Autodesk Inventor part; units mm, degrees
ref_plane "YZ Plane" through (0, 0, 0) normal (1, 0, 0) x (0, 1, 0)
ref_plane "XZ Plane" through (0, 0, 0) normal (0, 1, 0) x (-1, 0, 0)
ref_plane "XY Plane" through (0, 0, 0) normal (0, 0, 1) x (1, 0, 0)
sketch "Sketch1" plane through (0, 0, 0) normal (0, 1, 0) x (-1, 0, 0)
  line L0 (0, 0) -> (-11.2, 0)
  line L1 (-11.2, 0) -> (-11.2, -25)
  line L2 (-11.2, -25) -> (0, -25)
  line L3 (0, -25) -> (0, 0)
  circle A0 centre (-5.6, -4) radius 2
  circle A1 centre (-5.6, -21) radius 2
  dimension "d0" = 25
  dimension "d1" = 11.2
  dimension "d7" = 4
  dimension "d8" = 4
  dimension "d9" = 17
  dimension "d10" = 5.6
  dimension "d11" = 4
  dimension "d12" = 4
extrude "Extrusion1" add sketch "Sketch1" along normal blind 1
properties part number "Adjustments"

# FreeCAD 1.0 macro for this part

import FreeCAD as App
import Part
import Sketcher

doc = App.newDocument("Part")
body = doc.addObject("PartDesign::Body", "Body")

# Sketch on XZ plane
sketch1 = body.newObject("Sketcher::SketchObject", "Sketch")
sketch1.AttachmentSupport = (doc.getObject("XZ_Plane"), [""])
sketch1.MapMode = "FlatFace"
sketch1.addGeometry(Part.LineSegment(App.Vector(0, -25, 0), App.Vector(0, 0, 0)), False)
sketch1.addGeometry(Part.LineSegment(App.Vector(0, 0, 0), App.Vector(11.2, 0, 0)), False)
sketch1.addGeometry(Part.LineSegment(App.Vector(11.2, 0, 0), App.Vector(11.2, -25, 0)), False)
sketch1.addGeometry(Part.LineSegment(App.Vector(11.2, -25, 0), App.Vector(0, -25, 0)), False)
sketch1.addGeometry(Part.Circle(App.Vector(5.6, -21, 0), App.Vector(0, 0, 1), 2), False)
sketch1.addGeometry(Part.Circle(App.Vector(5.6, -4, 0), App.Vector(0, 0, 1), 2), False)
sketch1.addConstraint(Sketcher.Constraint("Coincident", 0, 2, 1, 1))
sketch1.addConstraint(Sketcher.Constraint("Coincident", 1, 2, 2, 1))
sketch1.addConstraint(Sketcher.Constraint("Coincident", 2, 2, 3, 1))
sketch1.addConstraint(Sketcher.Constraint("Coincident", 3, 2, 0, 1))
sketch1.addConstraint(Sketcher.Constraint("Vertical", 0))
sketch1.addConstraint(Sketcher.Constraint("Horizontal", 1))
sketch1.addConstraint(Sketcher.Constraint("Vertical", 2))
sketch1.addConstraint(Sketcher.Constraint("Horizontal", 3))
sketch1.addConstraint(Sketcher.Constraint("Coincident", 0, 2, -1, 1))
sketch1.addConstraint(Sketcher.Constraint("Equal", 4, 5))
sketch1.addConstraint(Sketcher.Constraint("Vertical", 4, 3, 5, 3))
sketch1.addConstraint(Sketcher.Constraint("Diameter", 4, 4.0))
sketch1.addConstraint(Sketcher.Constraint("DistanceY", 0, 1, 0, 2, 25.0))
sketch1.addConstraint(Sketcher.Constraint("DistanceX", 1, 1, 1, 2, 11.2))
sketch1.addConstraint(Sketcher.Constraint("DistanceY", 5, 3, -1, 1, 4.0))
sketch1.addConstraint(Sketcher.Constraint("DistanceY", 4, 3, 5, 3, 17.0))
sketch1.addConstraint(Sketcher.Constraint("DistanceX", -1, 1, 4, 3, 5.6))
pad1 = body.newObject("PartDesign::Pad", "Pad")
pad1.Profile = sketch1
pad1.Length = 1
pad1.Reversed = True

doc.recompute()
